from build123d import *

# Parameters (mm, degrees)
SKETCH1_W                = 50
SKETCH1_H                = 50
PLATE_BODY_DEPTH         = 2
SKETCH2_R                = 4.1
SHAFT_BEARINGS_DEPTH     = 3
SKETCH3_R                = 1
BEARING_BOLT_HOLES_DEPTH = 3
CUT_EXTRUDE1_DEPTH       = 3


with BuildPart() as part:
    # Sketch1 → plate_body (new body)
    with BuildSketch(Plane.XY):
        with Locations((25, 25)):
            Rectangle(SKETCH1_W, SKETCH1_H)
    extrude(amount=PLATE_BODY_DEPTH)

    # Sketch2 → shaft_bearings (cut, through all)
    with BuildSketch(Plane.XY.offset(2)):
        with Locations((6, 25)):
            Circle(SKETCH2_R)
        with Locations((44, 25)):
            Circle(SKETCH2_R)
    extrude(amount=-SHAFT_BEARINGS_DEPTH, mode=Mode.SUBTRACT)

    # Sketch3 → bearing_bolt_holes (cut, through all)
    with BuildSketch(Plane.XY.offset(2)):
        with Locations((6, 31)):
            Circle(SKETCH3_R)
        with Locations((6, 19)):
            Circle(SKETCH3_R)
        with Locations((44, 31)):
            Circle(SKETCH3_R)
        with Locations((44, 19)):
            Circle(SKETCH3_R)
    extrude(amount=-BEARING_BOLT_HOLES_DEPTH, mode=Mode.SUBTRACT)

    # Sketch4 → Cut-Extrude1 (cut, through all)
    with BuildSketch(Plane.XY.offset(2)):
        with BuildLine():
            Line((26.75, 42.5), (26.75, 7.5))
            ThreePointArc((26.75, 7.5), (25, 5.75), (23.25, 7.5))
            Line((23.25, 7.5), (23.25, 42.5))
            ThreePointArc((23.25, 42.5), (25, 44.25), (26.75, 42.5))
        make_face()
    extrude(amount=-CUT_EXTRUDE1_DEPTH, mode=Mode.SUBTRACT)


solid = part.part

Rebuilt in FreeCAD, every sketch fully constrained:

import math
import FreeCAD as App
import Part
import Sketcher
Q = App.Units.Quantity

doc = App.newDocument("Part")
body = doc.addObject("PartDesign::Body", "Body")

sketch1 = body.newObject("Sketcher::SketchObject", "Sketch")
sketch1.AttachmentSupport = (doc.getObject("XY_Plane"), [""])
sketch1.MapMode = "FlatFace"
sketch1.addGeometry([
    Part.LineSegment(App.Vector(0, 50, 0), App.Vector(0, 0, 0)),
    Part.LineSegment(App.Vector(0, 0, 0), App.Vector(50, 0, 0)),
    Part.LineSegment(App.Vector(50, 0, 0), App.Vector(50, 50, 0)),
    Part.LineSegment(App.Vector(50, 50, 0), App.Vector(0, 50, 0)),
], False)
sketch1.addConstraint([
    Sketcher.Constraint("Coincident", 0, 2, 1, 1),
    Sketcher.Constraint("Coincident", 1, 2, 2, 1),
    Sketcher.Constraint("Coincident", 2, 2, 3, 1),
    Sketcher.Constraint("Coincident", 3, 2, 0, 1),
    Sketcher.Constraint("Vertical", 0),
    Sketcher.Constraint("Horizontal", 1),
    Sketcher.Constraint("Vertical", 2),
    Sketcher.Constraint("Horizontal", 3),
    Sketcher.Constraint("Coincident", 0, 2, -1, 1),
    Sketcher.Constraint("Equal", 3, 0),
    Sketcher.Constraint("DistanceX", 1, 1, 1, 2, Q("50 mm")),
])
pad1 = body.newObject("PartDesign::Pad", "Pad")
pad1.Profile = sketch1
pad1.Length = 2

sketch2 = body.newObject("Sketcher::SketchObject", "Sketch001")
sketch2.AttachmentSupport = (doc.getObject("XY_Plane"), [""])
sketch2.MapMode = "FlatFace"
sketch2.AttachmentOffset = App.Placement(App.Vector(0, 0, 2), App.Rotation())
sketch2.addGeometry([
    Part.Circle(App.Vector(6, 25, 0), App.Vector(0, 0, 1), 4.1),
    Part.Circle(App.Vector(44, 25, 0), App.Vector(0, 0, 1), 4.1),
], False)
sketch2.addConstraint([
    Sketcher.Constraint("Equal", 0, 1),
    Sketcher.Constraint("Horizontal", 0, 3, 1, 3),
    Sketcher.Constraint("Diameter", 0, Q("8.2 mm")),
    Sketcher.Constraint("DistanceX", -1, 1, 0, 3, Q("6 mm")),
    Sketcher.Constraint("DistanceY", -1, 1, 0, 3, Q("25 mm")),
    Sketcher.Constraint("DistanceX", -1, 1, 1, 3, Q("44 mm")),
])
pocket1 = body.newObject("PartDesign::Pocket", "Pocket")
pocket1.Profile = sketch2
pocket1.Type = "ThroughAll"

sketch3 = body.newObject("Sketcher::SketchObject", "Sketch002")
sketch3.AttachmentSupport = (doc.getObject("XY_Plane"), [""])
sketch3.MapMode = "FlatFace"
sketch3.AttachmentOffset = App.Placement(App.Vector(0, 0, 2), App.Rotation())
sketch3.addGeometry([
    Part.Circle(App.Vector(6, 31, 0), App.Vector(0, 0, 1), 1),
    Part.Circle(App.Vector(6, 19, 0), App.Vector(0, 0, 1), 1),
    Part.Circle(App.Vector(44, 31, 0), App.Vector(0, 0, 1), 1),
    Part.Circle(App.Vector(44, 19, 0), App.Vector(0, 0, 1), 1),
], False)
sketch3.addConstraint([
    Sketcher.Constraint("Equal", 0, 1),
    Sketcher.Constraint("Equal", 1, 2),
    Sketcher.Constraint("Equal", 2, 3),
    Sketcher.Constraint("Horizontal", 0, 3, 2, 3),
    Sketcher.Constraint("Horizontal", 1, 3, 3, 3),
    Sketcher.Constraint("Vertical", 0, 3, 1, 3),
    Sketcher.Constraint("Vertical", 2, 3, 3, 3),
    Sketcher.Constraint("Diameter", 0, Q("2 mm")),
    Sketcher.Constraint("DistanceX", -1, 1, 0, 3, Q("6 mm")),
    Sketcher.Constraint("DistanceY", -1, 1, 0, 3, Q("31 mm")),
    Sketcher.Constraint("DistanceY", -1, 1, 1, 3, Q("19 mm")),
    Sketcher.Constraint("DistanceX", -1, 1, 2, 3, Q("44 mm")),
])
pocket2 = body.newObject("PartDesign::Pocket", "Pocket001")
pocket2.Profile = sketch3
pocket2.Type = "ThroughAll"

sketch4 = body.newObject("Sketcher::SketchObject", "Sketch003")
sketch4.AttachmentSupport = (doc.getObject("XY_Plane"), [""])
sketch4.MapMode = "FlatFace"
sketch4.AttachmentOffset = App.Placement(App.Vector(0, 0, 2), App.Rotation())
sketch4.addGeometry([
    Part.LineSegment(App.Vector(26.8, 7.5, 0), App.Vector(26.8, 42.5, 0)),
    Part.ArcOfCircle(Part.Circle(App.Vector(25, 42.5, 0), App.Vector(0, 0, 1), 1.8), math.radians(0), math.radians(180)),
    Part.LineSegment(App.Vector(23.2, 42.5, 0), App.Vector(23.2, 7.5, 0)),
    Part.ArcOfCircle(Part.Circle(App.Vector(25, 7.5, 0), App.Vector(0, 0, 1), 1.8), math.radians(180), math.radians(360)),
], False)
sketch4.addConstraint([
    Sketcher.Constraint("Tangent", 0, 2, 1, 1),
    Sketcher.Constraint("Tangent", 1, 2, 2, 1),
    Sketcher.Constraint("Tangent", 2, 2, 3, 1),
    Sketcher.Constraint("Tangent", 3, 2, 0, 1),
    Sketcher.Constraint("Vertical", 0),
    Sketcher.Constraint("Vertical", 2),
    Sketcher.Constraint("DistanceY", 0, 1, 0, 2, Q("35 mm")),
    Sketcher.Constraint("Radius", 1, Q("1.75 mm")),
    Sketcher.Constraint("DistanceX", -1, 1, 1, 3, Q("25 mm")),
    Sketcher.Constraint("DistanceY", -1, 1, 1, 3, Q("42.5 mm")),
])
pocket3 = body.newObject("PartDesign::Pocket", "Pocket002")
pocket3.Profile = sketch4
pocket3.Type = "ThroughAll"

doc.recompute()
